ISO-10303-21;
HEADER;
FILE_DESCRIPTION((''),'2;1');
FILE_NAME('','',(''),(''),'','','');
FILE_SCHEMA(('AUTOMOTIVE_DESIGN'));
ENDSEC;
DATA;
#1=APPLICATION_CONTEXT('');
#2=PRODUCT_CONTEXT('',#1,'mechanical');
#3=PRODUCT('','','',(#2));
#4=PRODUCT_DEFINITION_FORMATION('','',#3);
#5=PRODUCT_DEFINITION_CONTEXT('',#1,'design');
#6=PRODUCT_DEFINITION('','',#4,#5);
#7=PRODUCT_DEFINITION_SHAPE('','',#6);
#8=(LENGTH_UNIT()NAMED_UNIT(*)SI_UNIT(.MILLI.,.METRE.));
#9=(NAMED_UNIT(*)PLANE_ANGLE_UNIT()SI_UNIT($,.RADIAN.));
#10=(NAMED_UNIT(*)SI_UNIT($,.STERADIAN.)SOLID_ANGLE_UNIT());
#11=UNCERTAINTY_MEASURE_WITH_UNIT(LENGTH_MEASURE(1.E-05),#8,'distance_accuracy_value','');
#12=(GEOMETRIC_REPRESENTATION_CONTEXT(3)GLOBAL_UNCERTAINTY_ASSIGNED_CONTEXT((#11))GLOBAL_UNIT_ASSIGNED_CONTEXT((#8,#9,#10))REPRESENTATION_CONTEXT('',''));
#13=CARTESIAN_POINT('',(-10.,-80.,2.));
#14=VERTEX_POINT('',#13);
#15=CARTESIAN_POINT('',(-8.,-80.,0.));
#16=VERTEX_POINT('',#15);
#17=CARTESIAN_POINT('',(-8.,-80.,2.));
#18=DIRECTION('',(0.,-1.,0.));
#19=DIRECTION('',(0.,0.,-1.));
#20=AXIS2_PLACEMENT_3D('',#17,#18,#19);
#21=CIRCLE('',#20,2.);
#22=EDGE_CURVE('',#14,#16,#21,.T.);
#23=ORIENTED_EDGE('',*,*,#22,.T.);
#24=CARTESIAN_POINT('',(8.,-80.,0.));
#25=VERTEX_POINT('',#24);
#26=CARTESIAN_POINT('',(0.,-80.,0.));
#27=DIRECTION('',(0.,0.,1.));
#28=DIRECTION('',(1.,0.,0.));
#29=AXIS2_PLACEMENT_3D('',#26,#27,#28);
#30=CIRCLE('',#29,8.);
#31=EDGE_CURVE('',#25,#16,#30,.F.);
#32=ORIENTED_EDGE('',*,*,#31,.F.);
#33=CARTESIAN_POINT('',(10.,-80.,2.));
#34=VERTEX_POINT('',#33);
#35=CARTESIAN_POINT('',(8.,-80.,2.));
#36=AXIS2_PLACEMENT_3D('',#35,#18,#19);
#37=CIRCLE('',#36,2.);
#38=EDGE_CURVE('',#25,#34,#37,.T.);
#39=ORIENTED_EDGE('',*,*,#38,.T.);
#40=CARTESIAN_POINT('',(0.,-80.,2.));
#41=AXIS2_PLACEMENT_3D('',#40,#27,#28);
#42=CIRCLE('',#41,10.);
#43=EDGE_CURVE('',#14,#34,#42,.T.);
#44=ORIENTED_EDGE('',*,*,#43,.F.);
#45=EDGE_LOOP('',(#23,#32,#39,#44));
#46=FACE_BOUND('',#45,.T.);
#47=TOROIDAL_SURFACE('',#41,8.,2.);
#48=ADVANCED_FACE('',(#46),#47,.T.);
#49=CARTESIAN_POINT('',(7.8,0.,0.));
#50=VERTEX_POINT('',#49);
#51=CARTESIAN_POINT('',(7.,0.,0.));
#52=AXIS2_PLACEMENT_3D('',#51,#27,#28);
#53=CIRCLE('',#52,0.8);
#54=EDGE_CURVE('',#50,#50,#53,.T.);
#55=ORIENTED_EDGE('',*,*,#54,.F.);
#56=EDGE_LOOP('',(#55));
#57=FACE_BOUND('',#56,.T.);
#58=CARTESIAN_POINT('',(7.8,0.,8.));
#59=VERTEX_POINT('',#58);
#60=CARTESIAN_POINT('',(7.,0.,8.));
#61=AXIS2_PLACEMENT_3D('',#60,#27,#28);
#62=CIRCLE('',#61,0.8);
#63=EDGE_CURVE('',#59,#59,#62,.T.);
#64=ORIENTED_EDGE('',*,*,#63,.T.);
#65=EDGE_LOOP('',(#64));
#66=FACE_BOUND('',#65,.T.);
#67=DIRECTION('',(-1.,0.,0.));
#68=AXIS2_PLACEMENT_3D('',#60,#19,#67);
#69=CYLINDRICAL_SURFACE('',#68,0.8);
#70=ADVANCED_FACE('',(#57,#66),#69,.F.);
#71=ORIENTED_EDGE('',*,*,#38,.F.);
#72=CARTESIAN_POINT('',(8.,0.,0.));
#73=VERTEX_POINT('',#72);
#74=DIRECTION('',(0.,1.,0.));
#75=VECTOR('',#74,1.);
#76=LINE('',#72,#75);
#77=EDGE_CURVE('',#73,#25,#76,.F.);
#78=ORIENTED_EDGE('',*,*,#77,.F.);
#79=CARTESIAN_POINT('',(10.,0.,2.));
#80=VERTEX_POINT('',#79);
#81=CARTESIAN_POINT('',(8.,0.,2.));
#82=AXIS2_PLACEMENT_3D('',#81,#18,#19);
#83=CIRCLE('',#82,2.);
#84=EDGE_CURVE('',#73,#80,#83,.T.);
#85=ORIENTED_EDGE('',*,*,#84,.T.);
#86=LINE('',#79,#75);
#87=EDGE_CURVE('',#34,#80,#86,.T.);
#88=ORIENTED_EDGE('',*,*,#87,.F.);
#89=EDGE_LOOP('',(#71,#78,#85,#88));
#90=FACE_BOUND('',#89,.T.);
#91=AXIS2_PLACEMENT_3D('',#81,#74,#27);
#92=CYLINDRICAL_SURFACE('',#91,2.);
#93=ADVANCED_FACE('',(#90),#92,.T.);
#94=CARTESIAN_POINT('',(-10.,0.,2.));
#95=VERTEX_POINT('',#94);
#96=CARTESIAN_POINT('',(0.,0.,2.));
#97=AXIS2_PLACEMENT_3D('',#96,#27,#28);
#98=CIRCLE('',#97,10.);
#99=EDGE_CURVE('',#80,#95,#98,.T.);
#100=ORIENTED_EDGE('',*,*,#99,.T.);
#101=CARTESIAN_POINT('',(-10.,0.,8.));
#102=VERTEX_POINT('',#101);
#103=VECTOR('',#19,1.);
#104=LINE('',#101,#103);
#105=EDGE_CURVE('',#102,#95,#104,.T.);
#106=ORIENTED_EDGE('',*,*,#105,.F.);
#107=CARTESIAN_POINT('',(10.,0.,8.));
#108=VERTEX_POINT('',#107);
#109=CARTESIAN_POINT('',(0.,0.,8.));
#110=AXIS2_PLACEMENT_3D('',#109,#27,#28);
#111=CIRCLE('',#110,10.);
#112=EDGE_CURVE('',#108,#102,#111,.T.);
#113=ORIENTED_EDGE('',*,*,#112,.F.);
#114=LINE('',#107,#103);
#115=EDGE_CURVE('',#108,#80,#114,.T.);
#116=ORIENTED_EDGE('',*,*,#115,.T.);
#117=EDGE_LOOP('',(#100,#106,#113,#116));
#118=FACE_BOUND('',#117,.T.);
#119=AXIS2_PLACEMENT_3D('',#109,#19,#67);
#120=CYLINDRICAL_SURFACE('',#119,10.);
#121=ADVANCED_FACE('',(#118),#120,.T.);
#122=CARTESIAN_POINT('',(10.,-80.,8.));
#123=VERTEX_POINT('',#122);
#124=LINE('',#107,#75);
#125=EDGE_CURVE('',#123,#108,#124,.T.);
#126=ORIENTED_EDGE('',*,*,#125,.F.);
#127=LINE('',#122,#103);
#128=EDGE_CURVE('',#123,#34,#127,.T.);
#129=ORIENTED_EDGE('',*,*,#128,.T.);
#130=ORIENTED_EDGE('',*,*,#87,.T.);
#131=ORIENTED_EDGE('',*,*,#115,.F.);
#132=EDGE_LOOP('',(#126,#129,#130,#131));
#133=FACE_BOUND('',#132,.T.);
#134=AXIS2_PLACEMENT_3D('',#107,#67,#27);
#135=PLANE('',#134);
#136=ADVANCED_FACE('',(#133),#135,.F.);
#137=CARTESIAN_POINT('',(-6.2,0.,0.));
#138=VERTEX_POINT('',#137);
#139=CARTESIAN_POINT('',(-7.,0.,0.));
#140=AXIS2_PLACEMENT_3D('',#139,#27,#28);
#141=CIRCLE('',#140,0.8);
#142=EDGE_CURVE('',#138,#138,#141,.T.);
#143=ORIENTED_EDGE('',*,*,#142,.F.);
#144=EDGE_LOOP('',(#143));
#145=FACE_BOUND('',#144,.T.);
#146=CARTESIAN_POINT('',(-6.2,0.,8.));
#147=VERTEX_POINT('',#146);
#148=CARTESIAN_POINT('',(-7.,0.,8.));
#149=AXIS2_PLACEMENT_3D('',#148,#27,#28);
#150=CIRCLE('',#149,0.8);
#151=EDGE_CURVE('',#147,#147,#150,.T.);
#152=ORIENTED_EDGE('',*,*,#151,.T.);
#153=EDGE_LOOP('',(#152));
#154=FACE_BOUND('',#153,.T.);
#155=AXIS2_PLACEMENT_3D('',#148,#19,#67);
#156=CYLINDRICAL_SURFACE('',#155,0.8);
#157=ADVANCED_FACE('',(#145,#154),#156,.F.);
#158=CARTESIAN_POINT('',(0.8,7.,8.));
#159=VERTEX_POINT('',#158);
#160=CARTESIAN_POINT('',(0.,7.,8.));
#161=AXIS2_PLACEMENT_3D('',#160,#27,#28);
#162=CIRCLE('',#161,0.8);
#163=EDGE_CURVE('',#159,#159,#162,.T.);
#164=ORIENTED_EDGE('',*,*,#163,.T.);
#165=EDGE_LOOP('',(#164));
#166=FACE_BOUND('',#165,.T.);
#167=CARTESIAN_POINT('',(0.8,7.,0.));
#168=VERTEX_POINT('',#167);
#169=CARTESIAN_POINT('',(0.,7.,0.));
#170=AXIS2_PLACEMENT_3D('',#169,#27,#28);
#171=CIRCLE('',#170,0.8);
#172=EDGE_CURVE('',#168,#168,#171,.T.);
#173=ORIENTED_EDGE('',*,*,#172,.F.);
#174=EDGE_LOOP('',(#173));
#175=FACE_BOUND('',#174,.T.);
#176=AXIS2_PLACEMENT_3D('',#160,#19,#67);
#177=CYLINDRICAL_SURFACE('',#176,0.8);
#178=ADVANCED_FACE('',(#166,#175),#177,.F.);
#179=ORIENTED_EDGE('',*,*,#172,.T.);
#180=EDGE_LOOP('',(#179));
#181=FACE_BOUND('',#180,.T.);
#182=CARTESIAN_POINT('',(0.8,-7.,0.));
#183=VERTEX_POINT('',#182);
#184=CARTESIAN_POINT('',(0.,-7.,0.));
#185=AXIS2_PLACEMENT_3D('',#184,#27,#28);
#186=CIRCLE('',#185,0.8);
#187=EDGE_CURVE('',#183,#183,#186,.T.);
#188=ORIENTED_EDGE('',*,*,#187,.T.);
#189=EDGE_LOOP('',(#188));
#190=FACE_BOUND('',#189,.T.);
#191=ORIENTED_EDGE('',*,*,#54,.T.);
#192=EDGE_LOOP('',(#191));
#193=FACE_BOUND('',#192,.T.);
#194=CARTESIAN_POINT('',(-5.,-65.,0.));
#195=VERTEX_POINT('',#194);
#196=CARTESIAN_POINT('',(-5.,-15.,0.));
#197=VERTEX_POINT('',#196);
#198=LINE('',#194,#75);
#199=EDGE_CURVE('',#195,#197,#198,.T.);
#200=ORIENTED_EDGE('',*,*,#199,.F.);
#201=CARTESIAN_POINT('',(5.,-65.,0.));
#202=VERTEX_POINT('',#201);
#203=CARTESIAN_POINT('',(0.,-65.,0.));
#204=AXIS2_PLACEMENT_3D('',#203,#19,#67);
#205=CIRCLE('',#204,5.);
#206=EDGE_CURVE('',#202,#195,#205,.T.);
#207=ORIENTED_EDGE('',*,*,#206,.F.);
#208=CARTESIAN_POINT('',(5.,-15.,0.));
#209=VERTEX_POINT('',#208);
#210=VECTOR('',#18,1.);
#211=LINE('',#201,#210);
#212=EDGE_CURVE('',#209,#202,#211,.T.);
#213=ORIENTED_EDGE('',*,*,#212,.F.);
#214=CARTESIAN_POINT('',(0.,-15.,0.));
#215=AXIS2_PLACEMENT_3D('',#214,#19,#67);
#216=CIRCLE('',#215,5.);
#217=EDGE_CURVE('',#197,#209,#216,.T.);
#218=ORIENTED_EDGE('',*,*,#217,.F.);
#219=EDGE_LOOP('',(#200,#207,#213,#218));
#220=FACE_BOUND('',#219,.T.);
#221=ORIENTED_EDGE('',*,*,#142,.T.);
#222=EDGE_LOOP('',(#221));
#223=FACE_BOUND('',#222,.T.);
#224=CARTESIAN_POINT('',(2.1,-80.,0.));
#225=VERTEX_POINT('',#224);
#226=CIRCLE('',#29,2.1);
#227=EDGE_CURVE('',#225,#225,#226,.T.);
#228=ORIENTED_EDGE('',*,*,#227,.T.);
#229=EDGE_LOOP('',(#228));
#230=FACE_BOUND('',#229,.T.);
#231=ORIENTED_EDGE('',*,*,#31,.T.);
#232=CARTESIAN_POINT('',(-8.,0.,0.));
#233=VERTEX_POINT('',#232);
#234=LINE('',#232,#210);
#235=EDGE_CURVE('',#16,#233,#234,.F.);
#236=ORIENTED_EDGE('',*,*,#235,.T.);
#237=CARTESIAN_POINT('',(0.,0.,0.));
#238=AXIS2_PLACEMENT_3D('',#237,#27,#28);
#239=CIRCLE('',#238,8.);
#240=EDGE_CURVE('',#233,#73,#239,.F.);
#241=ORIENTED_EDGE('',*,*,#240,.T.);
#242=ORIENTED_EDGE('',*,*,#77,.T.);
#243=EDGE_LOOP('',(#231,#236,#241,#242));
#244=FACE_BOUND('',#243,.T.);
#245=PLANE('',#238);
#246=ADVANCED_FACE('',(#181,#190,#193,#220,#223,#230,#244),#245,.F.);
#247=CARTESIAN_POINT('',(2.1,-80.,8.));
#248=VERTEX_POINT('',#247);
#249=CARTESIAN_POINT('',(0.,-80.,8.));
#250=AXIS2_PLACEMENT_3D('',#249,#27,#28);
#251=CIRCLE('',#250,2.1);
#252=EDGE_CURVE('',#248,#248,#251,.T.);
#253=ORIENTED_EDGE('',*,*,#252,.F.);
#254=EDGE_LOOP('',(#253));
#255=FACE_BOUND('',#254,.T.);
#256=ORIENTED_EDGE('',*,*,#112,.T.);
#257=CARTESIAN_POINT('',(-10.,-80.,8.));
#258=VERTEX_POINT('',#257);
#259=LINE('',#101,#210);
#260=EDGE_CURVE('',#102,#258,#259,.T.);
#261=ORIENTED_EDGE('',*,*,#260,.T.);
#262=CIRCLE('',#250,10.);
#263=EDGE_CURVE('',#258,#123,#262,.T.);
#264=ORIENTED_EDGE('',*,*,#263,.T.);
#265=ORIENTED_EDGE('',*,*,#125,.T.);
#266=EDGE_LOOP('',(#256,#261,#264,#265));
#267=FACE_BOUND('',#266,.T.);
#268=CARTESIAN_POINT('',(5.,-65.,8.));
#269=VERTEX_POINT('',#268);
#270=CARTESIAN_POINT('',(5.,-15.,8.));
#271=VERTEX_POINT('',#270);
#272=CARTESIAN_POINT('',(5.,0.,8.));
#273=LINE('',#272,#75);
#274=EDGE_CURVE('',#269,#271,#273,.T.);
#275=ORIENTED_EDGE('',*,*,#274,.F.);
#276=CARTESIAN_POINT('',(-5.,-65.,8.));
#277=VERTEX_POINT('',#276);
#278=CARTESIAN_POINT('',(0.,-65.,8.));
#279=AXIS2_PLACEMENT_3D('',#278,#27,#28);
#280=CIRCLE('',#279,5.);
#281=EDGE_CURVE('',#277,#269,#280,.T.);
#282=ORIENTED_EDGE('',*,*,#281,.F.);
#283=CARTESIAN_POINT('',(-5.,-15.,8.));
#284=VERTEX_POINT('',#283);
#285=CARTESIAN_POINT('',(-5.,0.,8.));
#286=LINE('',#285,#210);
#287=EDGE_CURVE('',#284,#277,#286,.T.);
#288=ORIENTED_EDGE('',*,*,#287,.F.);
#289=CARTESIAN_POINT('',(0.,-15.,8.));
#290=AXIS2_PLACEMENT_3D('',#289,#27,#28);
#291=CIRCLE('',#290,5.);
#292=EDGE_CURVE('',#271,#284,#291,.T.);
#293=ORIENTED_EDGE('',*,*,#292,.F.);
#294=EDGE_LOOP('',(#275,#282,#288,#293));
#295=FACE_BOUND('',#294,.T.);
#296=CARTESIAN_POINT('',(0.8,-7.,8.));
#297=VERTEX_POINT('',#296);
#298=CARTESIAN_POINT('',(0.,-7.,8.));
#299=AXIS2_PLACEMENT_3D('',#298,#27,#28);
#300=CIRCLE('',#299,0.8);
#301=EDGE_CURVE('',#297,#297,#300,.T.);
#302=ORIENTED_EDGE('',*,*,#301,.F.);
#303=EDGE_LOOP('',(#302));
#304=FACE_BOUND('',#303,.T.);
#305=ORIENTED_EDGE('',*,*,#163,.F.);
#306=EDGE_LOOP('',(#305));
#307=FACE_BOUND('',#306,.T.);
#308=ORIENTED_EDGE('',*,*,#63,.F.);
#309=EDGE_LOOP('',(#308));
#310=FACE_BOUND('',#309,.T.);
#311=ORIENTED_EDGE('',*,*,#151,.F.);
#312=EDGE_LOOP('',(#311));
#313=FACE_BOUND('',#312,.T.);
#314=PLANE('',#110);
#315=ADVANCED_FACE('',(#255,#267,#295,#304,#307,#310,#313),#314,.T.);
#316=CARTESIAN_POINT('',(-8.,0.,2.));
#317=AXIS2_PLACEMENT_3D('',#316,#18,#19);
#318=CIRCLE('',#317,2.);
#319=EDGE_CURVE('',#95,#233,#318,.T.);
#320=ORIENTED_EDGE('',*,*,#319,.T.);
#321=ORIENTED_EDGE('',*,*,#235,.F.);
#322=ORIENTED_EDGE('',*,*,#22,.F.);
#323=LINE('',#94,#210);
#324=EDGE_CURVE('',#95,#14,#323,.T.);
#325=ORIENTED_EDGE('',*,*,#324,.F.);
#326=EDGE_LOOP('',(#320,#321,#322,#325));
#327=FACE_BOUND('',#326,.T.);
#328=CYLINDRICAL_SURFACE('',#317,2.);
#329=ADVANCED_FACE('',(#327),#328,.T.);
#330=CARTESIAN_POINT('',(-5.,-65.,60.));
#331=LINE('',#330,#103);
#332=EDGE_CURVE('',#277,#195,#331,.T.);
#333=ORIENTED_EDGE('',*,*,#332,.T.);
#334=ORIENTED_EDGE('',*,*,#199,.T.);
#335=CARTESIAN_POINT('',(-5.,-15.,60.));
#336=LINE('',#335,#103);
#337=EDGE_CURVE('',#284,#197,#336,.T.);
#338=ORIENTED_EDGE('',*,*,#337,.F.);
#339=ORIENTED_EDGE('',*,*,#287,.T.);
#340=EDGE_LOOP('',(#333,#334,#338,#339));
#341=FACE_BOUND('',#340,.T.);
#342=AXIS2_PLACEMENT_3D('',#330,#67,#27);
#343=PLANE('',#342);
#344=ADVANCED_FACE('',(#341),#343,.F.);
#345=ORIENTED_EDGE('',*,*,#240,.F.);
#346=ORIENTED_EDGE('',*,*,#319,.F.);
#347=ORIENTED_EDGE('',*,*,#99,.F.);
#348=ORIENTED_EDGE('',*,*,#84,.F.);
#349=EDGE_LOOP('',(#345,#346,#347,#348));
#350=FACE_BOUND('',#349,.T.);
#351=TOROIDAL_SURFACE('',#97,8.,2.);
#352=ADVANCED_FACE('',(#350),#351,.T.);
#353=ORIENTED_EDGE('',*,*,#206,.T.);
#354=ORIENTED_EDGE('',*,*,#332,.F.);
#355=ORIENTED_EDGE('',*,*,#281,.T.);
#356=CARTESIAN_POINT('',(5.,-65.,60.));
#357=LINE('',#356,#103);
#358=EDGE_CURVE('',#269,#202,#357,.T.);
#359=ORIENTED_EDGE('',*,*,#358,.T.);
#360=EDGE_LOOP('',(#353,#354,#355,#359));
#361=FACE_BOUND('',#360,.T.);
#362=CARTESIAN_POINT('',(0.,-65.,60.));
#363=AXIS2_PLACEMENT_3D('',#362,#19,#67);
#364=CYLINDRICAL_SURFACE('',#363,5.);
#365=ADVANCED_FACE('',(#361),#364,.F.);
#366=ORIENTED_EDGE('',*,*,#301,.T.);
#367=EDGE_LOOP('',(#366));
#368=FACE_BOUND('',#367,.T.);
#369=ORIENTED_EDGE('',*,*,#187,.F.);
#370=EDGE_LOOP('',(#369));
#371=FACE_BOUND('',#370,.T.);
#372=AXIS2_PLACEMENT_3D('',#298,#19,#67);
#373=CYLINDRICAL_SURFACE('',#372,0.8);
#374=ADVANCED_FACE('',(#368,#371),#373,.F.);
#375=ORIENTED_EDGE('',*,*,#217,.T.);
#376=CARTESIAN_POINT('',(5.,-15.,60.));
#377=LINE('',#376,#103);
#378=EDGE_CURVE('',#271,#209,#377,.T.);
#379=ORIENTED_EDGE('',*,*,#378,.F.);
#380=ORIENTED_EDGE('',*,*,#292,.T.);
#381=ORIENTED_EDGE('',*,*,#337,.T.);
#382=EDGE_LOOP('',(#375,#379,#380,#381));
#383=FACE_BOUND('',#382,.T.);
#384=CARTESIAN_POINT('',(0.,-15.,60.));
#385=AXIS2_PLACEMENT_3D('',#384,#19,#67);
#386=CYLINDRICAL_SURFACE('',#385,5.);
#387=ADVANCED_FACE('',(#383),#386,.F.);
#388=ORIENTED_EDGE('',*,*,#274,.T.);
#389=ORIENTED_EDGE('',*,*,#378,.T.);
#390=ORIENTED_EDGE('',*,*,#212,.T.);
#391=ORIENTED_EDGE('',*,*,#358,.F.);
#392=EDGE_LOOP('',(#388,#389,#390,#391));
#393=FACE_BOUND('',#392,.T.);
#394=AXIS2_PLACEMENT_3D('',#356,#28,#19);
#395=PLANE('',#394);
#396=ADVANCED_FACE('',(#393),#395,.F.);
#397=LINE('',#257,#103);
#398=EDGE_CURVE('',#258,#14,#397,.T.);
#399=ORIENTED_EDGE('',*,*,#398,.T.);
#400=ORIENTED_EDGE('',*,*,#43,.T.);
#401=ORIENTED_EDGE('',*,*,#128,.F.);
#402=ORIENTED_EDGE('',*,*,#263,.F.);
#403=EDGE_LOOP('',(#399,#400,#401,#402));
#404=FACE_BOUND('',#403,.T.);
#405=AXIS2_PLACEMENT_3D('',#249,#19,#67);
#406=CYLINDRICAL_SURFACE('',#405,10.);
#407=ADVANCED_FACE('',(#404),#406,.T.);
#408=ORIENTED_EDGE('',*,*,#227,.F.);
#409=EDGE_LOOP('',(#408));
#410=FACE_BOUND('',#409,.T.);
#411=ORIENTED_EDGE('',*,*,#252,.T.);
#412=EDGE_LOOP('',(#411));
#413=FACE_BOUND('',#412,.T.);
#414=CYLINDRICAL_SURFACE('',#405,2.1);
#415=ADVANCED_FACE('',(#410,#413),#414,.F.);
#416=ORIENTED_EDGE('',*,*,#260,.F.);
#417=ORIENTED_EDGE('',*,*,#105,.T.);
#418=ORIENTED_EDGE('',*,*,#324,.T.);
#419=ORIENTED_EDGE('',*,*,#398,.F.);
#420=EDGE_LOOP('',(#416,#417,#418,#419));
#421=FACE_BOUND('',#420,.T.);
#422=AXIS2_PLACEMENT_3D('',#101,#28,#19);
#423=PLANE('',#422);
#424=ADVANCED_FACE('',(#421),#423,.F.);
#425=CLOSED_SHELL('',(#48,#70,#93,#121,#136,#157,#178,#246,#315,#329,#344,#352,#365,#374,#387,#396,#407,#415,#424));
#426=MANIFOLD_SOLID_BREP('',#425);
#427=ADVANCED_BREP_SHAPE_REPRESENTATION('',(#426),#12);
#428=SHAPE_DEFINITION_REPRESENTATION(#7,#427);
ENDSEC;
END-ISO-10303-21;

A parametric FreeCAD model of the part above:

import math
import FreeCAD as App
import Part
import Sketcher
from FreeCAD import Vector
Q = App.Units.Quantity


def edges_at(feature, points):
    """Names of the edges that pass closest to the given points."""
    edges = feature.Shape.Edges
    near = lambda p: min(range(len(edges)), key=lambda i: edges[i].distToShape(Part.Vertex(*p))[0])
    return sorted({f"Edge{near(p) + 1}" for p in points})

doc = App.newDocument("Part")
params = doc.addObject("Spreadsheet::Sheet", "Params")
for row, (alias, value) in enumerate([
    ("sketch1_radius", "10 mm"),
    ("sketch1_diameter", "1.6 mm"),
    ("sketch1_diameter2", "4.2 mm"),
    ("sketch1_height", "80 mm"),
    ("pad1_length", "8 mm"),
    ("fillet_radius", "2 mm"),
    ("sketch2_radius", "5 mm"),
    ("sketch2_height", "50 mm"),
    ("pocket1_length", "60 mm"),
], start=1):
    params.set(f"A{row}", alias)
    params.set(f"B{row}", "=" + value)
    params.setAlias(f"B{row}", alias)

body = doc.addObject("PartDesign::Body", "Body")

# Sketch on XY plane
sketch1 = body.newObject("Sketcher::SketchObject", "Sketch")
sketch1.AttachmentSupport = (doc.getObject("XY_Plane"), [""])
sketch1.MapMode = "FlatFace"
sketch1.addGeometry([
    Part.LineSegment(Vector(-10, 0, 0), Vector(-10, -80, 0)),  # 0
    Part.ArcOfCircle(Part.Circle(Vector(0, -80, 0), Vector(0, 0, 1), 10), math.radians(180), math.radians(360)),  # 1
    Part.LineSegment(Vector(10, -80, 0), Vector(10, 0, 0)),  # 2
    Part.ArcOfCircle(Part.Circle(Vector(0, 0, 0), Vector(0, 0, 1), 10), math.radians(0), math.radians(180)),  # 3
    Part.Circle(Vector(0, 7, 0), Vector(0, 0, 1), 0.8),  # 4
    Part.Circle(Vector(0, -7, 0), Vector(0, 0, 1), 0.8),  # 5
    Part.Circle(Vector(-7, 0, 0), Vector(0, 0, 1), 0.8),  # 6
    Part.Circle(Vector(7, 0, 0), Vector(0, 0, 1), 0.8),  # 7
    Part.Circle(Vector(0, -80, 0), Vector(0, 0, 1), 2.1),  # 8
], False)
sketch1.addConstraint([
    Sketcher.Constraint("Tangent", 0, 2, 1, 1),
    Sketcher.Constraint("Tangent", 1, 2, 2, 1),
    Sketcher.Constraint("Tangent", 2, 2, 3, 1),
    Sketcher.Constraint("Tangent", 3, 2, 0, 1),
    Sketcher.Constraint("Vertical", 0),
    Sketcher.Constraint("Vertical", 2),
    Sketcher.Constraint("Coincident", 3, 3, -1, 1),
    Sketcher.Constraint("Coincident", 8, 3, 1, 3),
    Sketcher.Constraint("Equal", 4, 5),
    Sketcher.Constraint("Equal", 5, 6),
    Sketcher.Constraint("Equal", 6, 7),
    Sketcher.Constraint("Symmetric", 4, 3, 5, 3, -1, 1),
    Sketcher.Constraint("Symmetric", 6, 3, 7, 3, -1, 1),
    Sketcher.Constraint("PointOnObject", 4, 3, -2),
    Sketcher.Constraint("PointOnObject", 6, 3, -1),
    Sketcher.Constraint("Radius", 1, Q("10 mm")),
    Sketcher.Constraint("Diameter", 4, Q("1.6 mm")),
    Sketcher.Constraint("Diameter", 8, Q("4.2 mm")),
    Sketcher.Constraint("DistanceY", 0, 2, 0, 1, Q("80 mm")),
    Sketcher.Constraint("DistanceY", -1, 1, 4, 3, Q("7 mm")),
    Sketcher.Constraint("DistanceX", 6, 3, -1, 1, Q("7 mm")),
])
sketch1.setExpression("Constraints[15]", "Params.sketch1_radius")
sketch1.setExpression("Constraints[16]", "Params.sketch1_diameter")
sketch1.setExpression("Constraints[17]", "Params.sketch1_diameter2")
sketch1.setExpression("Constraints[18]", "Params.sketch1_height")
pad1 = body.newObject("PartDesign::Pad", "Pad")
pad1.Profile = sketch1
pad1.setExpression("Length", "Params.pad1_length")
doc.recompute()

fillet = body.newObject("PartDesign::Fillet", "Fillet")
fillet.Base = (pad1, edges_at(pad1, [
    (-10, -40, 0),
    (0, 10, 0),
    (10, -40, 0),
    (0, -90, 0),
]))
fillet.setExpression("Radius", "Params.fillet_radius")

# Sketch on XY plane
sketch2 = body.newObject("Sketcher::SketchObject", "Sketch001")
sketch2.AttachmentSupport = (doc.getObject("XY_Plane"), [""])
sketch2.MapMode = "FlatFace"
sketch2.addGeometry([
    Part.LineSegment(Vector(5, -15, 0), Vector(5, -65, 0)),
    Part.ArcOfCircle(Part.Circle(Vector(0, -65, 0), Vector(0, 0, 1), 5), math.radians(180), math.radians(360)),
    Part.LineSegment(Vector(-5, -65, 0), Vector(-5, -15, 0)),
    Part.ArcOfCircle(Part.Circle(Vector(0, -15, 0), Vector(0, 0, 1), 5), math.radians(0), math.radians(180)),
], False)
sketch2.addConstraint([
    Sketcher.Constraint("Tangent", 0, 2, 1, 2),
    Sketcher.Constraint("Tangent", 1, 1, 2, 1),
    Sketcher.Constraint("Tangent", 2, 2, 3, 2),
    Sketcher.Constraint("Tangent", 3, 1, 0, 1),
    Sketcher.Constraint("Vertical", 0),
    Sketcher.Constraint("Vertical", 2),
    Sketcher.Constraint("PointOnObject", 1, 3, -2),
    Sketcher.Constraint("Radius", 1, Q("5 mm")),
    Sketcher.Constraint("DistanceY", 0, 2, 0, 1, Q("50 mm")),
    Sketcher.Constraint("DistanceY", 1, 3, -1, 1, Q("65 mm")),
])
sketch2.setExpression("Constraints[7]", "Params.sketch2_radius")
sketch2.setExpression("Constraints[8]", "Params.sketch2_height")
pocket1 = body.newObject("PartDesign::Pocket", "Pocket")
pocket1.Profile = sketch2
pocket1.setExpression("Length", "Params.pocket1_length")
pocket1.Reversed = True

doc.recompute()
